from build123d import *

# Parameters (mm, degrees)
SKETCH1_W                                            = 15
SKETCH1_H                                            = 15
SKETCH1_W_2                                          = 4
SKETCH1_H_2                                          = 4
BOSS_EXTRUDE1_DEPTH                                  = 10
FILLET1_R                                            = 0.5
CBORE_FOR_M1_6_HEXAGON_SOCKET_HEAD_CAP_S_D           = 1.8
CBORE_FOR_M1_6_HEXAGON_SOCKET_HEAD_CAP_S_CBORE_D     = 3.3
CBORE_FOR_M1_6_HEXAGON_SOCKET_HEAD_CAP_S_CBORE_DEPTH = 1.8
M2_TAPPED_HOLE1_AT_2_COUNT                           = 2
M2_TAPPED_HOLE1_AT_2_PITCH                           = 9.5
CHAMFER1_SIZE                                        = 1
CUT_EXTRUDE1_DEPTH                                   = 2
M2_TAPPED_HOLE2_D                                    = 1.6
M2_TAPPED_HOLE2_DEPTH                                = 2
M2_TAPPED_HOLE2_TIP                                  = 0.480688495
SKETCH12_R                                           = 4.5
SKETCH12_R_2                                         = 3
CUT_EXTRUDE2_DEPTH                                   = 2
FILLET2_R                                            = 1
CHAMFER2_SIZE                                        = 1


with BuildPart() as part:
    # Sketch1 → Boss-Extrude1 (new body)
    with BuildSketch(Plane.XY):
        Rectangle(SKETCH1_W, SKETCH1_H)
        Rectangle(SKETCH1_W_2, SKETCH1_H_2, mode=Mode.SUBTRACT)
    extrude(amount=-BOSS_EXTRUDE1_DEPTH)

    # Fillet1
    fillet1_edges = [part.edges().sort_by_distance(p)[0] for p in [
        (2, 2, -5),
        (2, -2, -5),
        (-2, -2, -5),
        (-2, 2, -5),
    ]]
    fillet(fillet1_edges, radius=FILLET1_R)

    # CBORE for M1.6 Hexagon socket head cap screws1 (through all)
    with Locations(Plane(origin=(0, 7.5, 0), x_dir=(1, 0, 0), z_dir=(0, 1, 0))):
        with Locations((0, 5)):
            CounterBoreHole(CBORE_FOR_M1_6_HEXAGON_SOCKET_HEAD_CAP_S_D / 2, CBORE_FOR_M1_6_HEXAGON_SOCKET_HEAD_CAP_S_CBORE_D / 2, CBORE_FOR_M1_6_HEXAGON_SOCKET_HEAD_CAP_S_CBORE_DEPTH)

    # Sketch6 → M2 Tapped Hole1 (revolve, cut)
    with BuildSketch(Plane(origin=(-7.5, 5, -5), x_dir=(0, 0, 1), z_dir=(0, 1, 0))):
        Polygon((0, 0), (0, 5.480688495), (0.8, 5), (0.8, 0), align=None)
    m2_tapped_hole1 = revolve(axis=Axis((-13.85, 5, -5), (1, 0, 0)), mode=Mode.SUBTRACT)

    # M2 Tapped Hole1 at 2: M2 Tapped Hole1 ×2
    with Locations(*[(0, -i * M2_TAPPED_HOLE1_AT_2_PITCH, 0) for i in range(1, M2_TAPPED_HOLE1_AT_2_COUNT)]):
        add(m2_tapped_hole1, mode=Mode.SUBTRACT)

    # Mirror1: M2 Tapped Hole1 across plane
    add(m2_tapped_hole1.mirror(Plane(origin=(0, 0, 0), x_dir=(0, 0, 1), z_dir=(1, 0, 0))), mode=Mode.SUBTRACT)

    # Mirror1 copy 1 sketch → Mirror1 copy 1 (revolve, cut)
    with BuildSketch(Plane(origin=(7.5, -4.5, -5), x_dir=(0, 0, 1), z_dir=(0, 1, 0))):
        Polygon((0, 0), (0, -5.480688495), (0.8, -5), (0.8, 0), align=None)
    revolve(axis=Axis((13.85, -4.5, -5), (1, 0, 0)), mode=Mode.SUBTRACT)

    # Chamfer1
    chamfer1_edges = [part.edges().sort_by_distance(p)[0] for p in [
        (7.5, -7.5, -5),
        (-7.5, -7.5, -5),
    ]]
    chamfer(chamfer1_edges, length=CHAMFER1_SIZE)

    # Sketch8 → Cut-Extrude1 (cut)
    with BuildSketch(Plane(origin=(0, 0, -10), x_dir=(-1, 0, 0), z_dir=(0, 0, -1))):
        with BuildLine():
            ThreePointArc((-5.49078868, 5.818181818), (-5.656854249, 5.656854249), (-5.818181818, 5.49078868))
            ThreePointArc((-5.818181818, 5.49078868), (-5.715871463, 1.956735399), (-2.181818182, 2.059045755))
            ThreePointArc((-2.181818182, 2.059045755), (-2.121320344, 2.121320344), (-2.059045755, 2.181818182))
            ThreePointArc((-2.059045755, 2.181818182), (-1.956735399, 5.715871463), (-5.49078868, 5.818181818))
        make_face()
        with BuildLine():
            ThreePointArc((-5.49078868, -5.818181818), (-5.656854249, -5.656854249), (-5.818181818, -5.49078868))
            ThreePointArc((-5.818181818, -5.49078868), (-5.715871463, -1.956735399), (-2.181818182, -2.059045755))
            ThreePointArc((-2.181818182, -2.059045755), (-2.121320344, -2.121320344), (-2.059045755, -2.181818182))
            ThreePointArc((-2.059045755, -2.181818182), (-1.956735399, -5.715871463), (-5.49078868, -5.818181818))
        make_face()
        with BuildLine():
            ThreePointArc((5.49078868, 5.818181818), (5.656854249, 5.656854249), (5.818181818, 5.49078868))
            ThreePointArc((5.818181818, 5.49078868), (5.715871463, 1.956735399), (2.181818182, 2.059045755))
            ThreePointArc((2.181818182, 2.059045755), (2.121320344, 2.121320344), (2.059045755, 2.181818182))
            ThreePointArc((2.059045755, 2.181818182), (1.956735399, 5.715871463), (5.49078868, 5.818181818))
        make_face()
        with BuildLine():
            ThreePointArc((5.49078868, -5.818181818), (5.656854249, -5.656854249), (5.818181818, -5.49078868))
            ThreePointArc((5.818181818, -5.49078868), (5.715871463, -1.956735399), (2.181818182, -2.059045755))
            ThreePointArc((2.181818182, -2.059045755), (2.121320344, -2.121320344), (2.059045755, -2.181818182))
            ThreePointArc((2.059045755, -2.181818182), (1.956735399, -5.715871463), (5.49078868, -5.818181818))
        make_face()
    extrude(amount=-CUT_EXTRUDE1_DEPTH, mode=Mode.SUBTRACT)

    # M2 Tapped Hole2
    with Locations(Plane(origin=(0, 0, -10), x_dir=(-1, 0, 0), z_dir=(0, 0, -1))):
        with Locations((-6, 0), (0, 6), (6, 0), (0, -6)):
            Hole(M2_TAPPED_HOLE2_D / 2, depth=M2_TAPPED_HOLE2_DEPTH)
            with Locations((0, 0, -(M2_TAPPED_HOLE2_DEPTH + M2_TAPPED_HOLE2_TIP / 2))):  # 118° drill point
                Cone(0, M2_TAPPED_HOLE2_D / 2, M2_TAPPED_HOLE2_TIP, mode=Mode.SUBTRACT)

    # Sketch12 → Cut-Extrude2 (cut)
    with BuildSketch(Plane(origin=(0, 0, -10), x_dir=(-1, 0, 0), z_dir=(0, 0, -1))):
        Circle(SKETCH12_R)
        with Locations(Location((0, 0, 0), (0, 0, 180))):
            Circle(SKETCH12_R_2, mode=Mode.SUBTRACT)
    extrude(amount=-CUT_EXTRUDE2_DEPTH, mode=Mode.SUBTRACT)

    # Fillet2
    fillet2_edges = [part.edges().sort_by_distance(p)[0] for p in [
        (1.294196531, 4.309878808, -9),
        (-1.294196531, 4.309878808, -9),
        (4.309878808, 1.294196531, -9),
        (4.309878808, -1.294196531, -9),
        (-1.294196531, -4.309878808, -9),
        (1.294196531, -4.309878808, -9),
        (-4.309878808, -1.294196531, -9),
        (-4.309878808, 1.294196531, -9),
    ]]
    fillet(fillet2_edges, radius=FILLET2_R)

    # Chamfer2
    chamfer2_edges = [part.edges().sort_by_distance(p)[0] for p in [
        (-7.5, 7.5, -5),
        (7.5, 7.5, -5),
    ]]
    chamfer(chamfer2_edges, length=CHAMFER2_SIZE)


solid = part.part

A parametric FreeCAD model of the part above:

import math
import FreeCAD as App
import Part
import Sketcher

V = App.Vector
Q = App.Units.Quantity


def edges_at(feature, points):
    """Names of the edges that pass closest to the given points."""
    edges = feature.Shape.Edges
    near = lambda p: min(range(len(edges)), key=lambda i: edges[i].distToShape(Part.Vertex(*p))[0])
    return sorted({f"Edge{near(p) + 1}" for p in points})


def add_polygon(sketch, points):
    """Adds a closed chain of lines whose ends are joined by coincident constraints."""
    first, n = sketch.GeometryCount, len(points)
    for a, b in zip(points, points[1:] + points[:1]):
        sketch.addGeometry(Part.LineSegment(App.Vector(*a, 0), App.Vector(*b, 0)), False)
    for i in range(n):
        sketch.addConstraint(Sketcher.Constraint("Coincident", first + i, 2, first + (i + 1) % n, 1))

doc = App.newDocument("Part")
params = doc.addObject("Spreadsheet::Sheet", "Params")
for row, (alias, value) in enumerate([
    ("sketch1_width", "15 mm"),
    ("sketch1_width2", "4 mm"),
    ("pad1_length", "10 mm"),
    ("fillet_radius", "0.5 mm"),
    ("sketch2_diameter", "1.8 mm"),
    ("hole_diameter", "1.8 mm"),
    ("hole_cbore_diameter", "3.3 mm"),
    ("hole_cbore_depth", "1.8 mm"),
    ("sketch3_width", "5 mm"),
    ("sketch3_height", "0.8 mm"),
    ("groove_angle", "360 deg"),
    ("linearpattern_pitch", "9.5 mm"),
    ("sketch4_width", "5 mm"),
    ("sketch4_height", "0.8 mm"),
    ("groove2_angle", "360 deg"),
    ("chamfer_size", "1 mm"),
    ("sketch5_radius", "8.000001 mm"),
    ("sketch5_radius2", "2.999999 mm"),
    ("pocket1_length", "2 mm"),
    ("sketch6_diameter", "1.6 mm"),
    ("hole2_diameter", "1.6 mm"),
    ("hole2_depth", "2 mm"),
    ("sketch7_diameter", "9 mm"),
    ("sketch7_diameter2", "6 mm"),
    ("pocket2_length", "2 mm"),
    ("fillet2_radius", "1 mm"),
    ("chamfer2_size", "1 mm"),
], start=1):
    params.set(f"A{row}", alias)
    params.set(f"B{row}", "=" + value)
    params.setAlias(f"B{row}", alias)

body = doc.addObject("PartDesign::Body", "Body")

# Sketch on XY plane
sketch1 = body.newObject("Sketcher::SketchObject", "Sketch")
sketch1.AttachmentSupport = (doc.getObject("XY_Plane"), [""])
sketch1.MapMode = "FlatFace"
add_polygon(sketch1, [(-7.5, 7.5), (-7.5, -7.5), (7.5, -7.5), (7.5, 7.5)])  # lines 0-3
add_polygon(sketch1, [(2, -2), (-2, -2), (-2, 2), (2, 2)])  # lines 4-7
sketch1.addConstraint([
    Sketcher.Constraint("Vertical", 0),
    Sketcher.Constraint("Horizontal", 1),
    Sketcher.Constraint("Vertical", 2),
    Sketcher.Constraint("Horizontal", 3),
    Sketcher.Constraint("Horizontal", 4),
    Sketcher.Constraint("Vertical", 5),
    Sketcher.Constraint("Horizontal", 6),
    Sketcher.Constraint("Vertical", 7),
    Sketcher.Constraint("Symmetric", 0, 2, 2, 2, -1, 1),
    Sketcher.Constraint("Symmetric", 4, 2, 6, 2, -1, 1),
    Sketcher.Constraint("Equal", 3, 0),
    Sketcher.Constraint("Equal", 6, 5),
    Sketcher.Constraint("DistanceX", 1, 1, 1, 2, 15.0),
    Sketcher.Constraint("DistanceX", 4, 2, 4, 1, 4.0),
])
sketch1.setExpression("Constraints[20]", "Params.sketch1_width")
sketch1.setExpression("Constraints[21]", "Params.sketch1_width2")
pad1 = body.newObject("PartDesign::Pad", "Pad")
pad1.Profile = sketch1
pad1.setExpression("Length", "Params.pad1_length")
pad1.Reversed = True
doc.recompute()

fillet = body.newObject("PartDesign::Fillet", "Fillet")
fillet.Base = (pad1, edges_at(pad1, [
    (2, 2, -5),
    (2, -2, -5),
    (-2, -2, -5),
    (-2, 2, -5),
]))
fillet.setExpression("Radius", "Params.fillet_radius")

# Sketch on XZ plane
sketch2 = body.newObject("Sketcher::SketchObject", "Sketch001")
sketch2.AttachmentSupport = (doc.getObject("XZ_Plane"), [""])
sketch2.MapMode = "FlatFace"
sketch2.AttachmentOffset = App.Placement(V(0, 0, -7.5), App.Rotation())
sketch2.addGeometry(Part.Circle(V(0, -5, 0), V(0, 0, 1), 0.9), False)
sketch2.addConstraint([
    Sketcher.Constraint("PointOnObject", 0, 3, -2),
    Sketcher.Constraint("Diameter", 0, 1.8),
    Sketcher.Constraint("DistanceY", 0, 3, -1, 1, 5.0),
])
sketch2.setExpression("Constraints[1]", "Params.sketch2_diameter")
doc.recompute()
hole = body.newObject("PartDesign::Hole", "Hole")
hole.Profile = sketch2
hole.ThreadType = "None"
hole.setExpression("Diameter", "Params.hole_diameter")
hole.DepthType = "ThroughAll"
hole.HoleCutType = "Counterbore"
hole.setExpression("HoleCutDiameter", "Params.hole_cbore_diameter")
hole.setExpression("HoleCutDepth", "Params.hole_cbore_depth")
hole.Reversed = True

# Sketch on XZ plane
sketch3 = body.newObject("Sketcher::SketchObject", "Sketch002")
sketch3.AttachmentSupport = (doc.getObject("XZ_Plane"), [""])
sketch3.MapMode = "FlatFace"
sketch3.AttachmentOffset = App.Placement(V(0, 0, -5), App.Rotation())
add_polygon(sketch3, [(-2.019312, -5), (-7.5, -5), (-7.5, -4.2), (-2.5, -4.2)])  # lines 0-3
sketch3.addGeometry(Part.LineSegment(V(-7.5, -5, 0), V(-2.019312, -5, 0)), True)  # axis
sketch3.addConstraint([
    Sketcher.Constraint("Horizontal", 0),
    Sketcher.Constraint("Vertical", 1),
    Sketcher.Constraint("Horizontal", 2),
    Sketcher.Constraint("Horizontal", 4),
    Sketcher.Constraint("Coincident", 4, 1, 0, 2),
    Sketcher.Constraint("Equal", 0, 4),
    Sketcher.Constraint("DistanceX", 2, 1, 2, 2, 5.0),
    Sketcher.Constraint("Angle", 3, Q("-59 deg")),
    Sketcher.Constraint("DistanceY", 1, 1, 1, 2, 0.8),
    Sketcher.Constraint("DistanceY", 0, 2, -1, 1, 5.0),
    Sketcher.Constraint("DistanceX", 0, 2, -1, 1, 7.5),
])
sketch3.setExpression("Constraints[10]", "Params.sketch3_width")
sketch3.setExpression("Constraints[12]", "Params.sketch3_height")
groove = body.newObject("PartDesign::Groove", "Groove")
groove.Profile = sketch3
groove.ReferenceAxis = (sketch3, ["Axis0"])
groove.setExpression("Angle", "Params.groove_angle")
doc.recompute()

linearpattern = body.newObject("PartDesign::LinearPattern", "LinearPattern")
linearpattern.Originals = [groove]
linearpattern.Direction = (doc.getObject("Y_Axis"), [""])
linearpattern.Mode = "offset"
linearpattern.setExpression("Offset", "Params.linearpattern_pitch")
linearpattern.Occurrences = 2
linearpattern.Reversed = True
body.Tip = linearpattern
doc.recompute()

mirrored = body.newObject("PartDesign::Mirrored", "Mirrored")
mirrored.Originals = [groove]
mirrored.MirrorPlane = (doc.getObject("YZ_Plane"), [""])
body.Tip = mirrored

# Sketch on XZ plane
sketch4 = body.newObject("Sketcher::SketchObject", "Sketch003")
sketch4.AttachmentSupport = (doc.getObject("XZ_Plane"), [""])
sketch4.MapMode = "FlatFace"
sketch4.AttachmentOffset = App.Placement(V(0, 0, 4.5), App.Rotation())
add_polygon(sketch4, [(7.5, -5), (2.019312, -5), (2.5, -4.2), (7.5, -4.2)])  # lines 0-3
sketch4.addGeometry(Part.LineSegment(V(2.019312, -5, 0), V(7.5, -5, 0)), True)  # axis
sketch4.addConstraint([
    Sketcher.Constraint("Horizontal", 0),
    Sketcher.Constraint("Horizontal", 2),
    Sketcher.Constraint("Vertical", 3),
    Sketcher.Constraint("Horizontal", 4),
    Sketcher.Constraint("Coincident", 4, 1, 0, 2),
    Sketcher.Constraint("Vertical", 2, 2, 4, 2),
    Sketcher.Constraint("DistanceX", 2, 1, 2, 2, 5.0),
    Sketcher.Constraint("Angle", 1, Q("59 deg")),
    Sketcher.Constraint("DistanceY", 3, 2, 3, 1, 0.8),
    Sketcher.Constraint("DistanceY", 0, 2, -1, 1, 5.0),
    Sketcher.Constraint("DistanceX", -1, 1, 1, 2, 2.5),
])
sketch4.setExpression("Constraints[10]", "Params.sketch4_width")
sketch4.setExpression("Constraints[12]", "Params.sketch4_height")
groove2 = body.newObject("PartDesign::Groove", "Groove001")
groove2.Profile = sketch4
groove2.ReferenceAxis = (sketch4, ["Axis0"])
groove2.setExpression("Angle", "Params.groove2_angle")
doc.recompute()

chamfer = body.newObject("PartDesign::Chamfer", "Chamfer")
chamfer.Base = (groove2, edges_at(groove2, [(7.5, -7.5, -5), (-7.5, -7.5, -5)]))
chamfer.setExpression("Size", "Params.chamfer_size")

# Sketch on XY plane
sketch5 = body.newObject("Sketcher::SketchObject", "Sketch004")
sketch5.AttachmentSupport = (doc.getObject("XY_Plane"), [""])
sketch5.MapMode = "FlatFace"
sketch5.AttachmentOffset = App.Placement(V(0, 0, -10), App.Rotation())
sketch5.addGeometry([
    Part.ArcOfCircle(Part.Circle(V(-0.000001, -0.000001, 0), V(0, 0, 1), 8.000001), math.radians(43.341758), math.radians(46.658242)),  # 0
    Part.ArcOfCircle(Part.Circle(V(4, 3.774917, 0), V(0, 0, 1), 2.5), math.radians(-136.658242), math.radians(43.341758)),  # 1
    Part.ArcOfCircle(Part.Circle(V(0.000001, 0.000001, 0), V(0, 0, 1), 2.999999), math.radians(43.341758), math.radians(46.658242)),  # 2
    Part.ArcOfCircle(Part.Circle(V(3.774917, 4, 0), V(0, 0, 1), 2.5), math.radians(46.658242), math.radians(226.658242)),  # 3
    Part.ArcOfCircle(Part.Circle(V(-0.000001, 0.000001, 0), V(0, 0, 1), 8.000001), math.radians(-46.658242), math.radians(-43.341758)),  # 4
    Part.ArcOfCircle(Part.Circle(V(3.774917, -4, 0), V(0, 0, 1), 2.5), math.radians(133.341758), math.radians(313.341758)),  # 5
    Part.ArcOfCircle(Part.Circle(V(0.000001, -0.000001, 0), V(0, 0, 1), 2.999999), math.radians(-46.658242), math.radians(-43.341758)),  # 6
    Part.ArcOfCircle(Part.Circle(V(4, -3.774917, 0), V(0, 0, 1), 2.5), math.radians(-43.341758), math.radians(136.658242)),  # 7
    Part.ArcOfCircle(Part.Circle(V(0.000001, -0.000001, 0), V(0, 0, 1), 8.000001), math.radians(133.341758), math.radians(136.658242)),  # 8
    Part.ArcOfCircle(Part.Circle(V(-3.774917, 4, 0), V(0, 0, 1), 2.5), math.radians(-46.658242), math.radians(133.341758)),  # 9
    Part.ArcOfCircle(Part.Circle(V(-0.000001, 0.000001, 0), V(0, 0, 1), 2.999999), math.radians(133.341758), math.radians(136.658242)),  # 10
    Part.ArcOfCircle(Part.Circle(V(-4, 3.774917, 0), V(0, 0, 1), 2.5), math.radians(136.658242), math.radians(316.658242)),  # 11
    Part.ArcOfCircle(Part.Circle(V(0.000001, 0.000001, 0), V(0, 0, 1), 8.000001), math.radians(-136.658242), math.radians(-133.341758)),  # 12
    Part.ArcOfCircle(Part.Circle(V(-4, -3.774917, 0), V(0, 0, 1), 2.5), math.radians(43.341758), math.radians(223.341758)),  # 13
    Part.ArcOfCircle(Part.Circle(V(-0.000001, -0.000001, 0), V(0, 0, 1), 2.999999), math.radians(-136.658242), math.radians(-133.341758)),  # 14
    Part.ArcOfCircle(Part.Circle(V(-3.774917, -4, 0), V(0, 0, 1), 2.5), math.radians(-133.341758), math.radians(46.658242)),  # 15
], False)
sketch5.addConstraint([
    Sketcher.Constraint("Tangent", 0, 1, 1, 2),
    Sketcher.Constraint("Tangent", 1, 1, 2, 1),
    Sketcher.Constraint("Tangent", 2, 2, 3, 2),
    Sketcher.Constraint("Tangent", 3, 1, 0, 2),
    Sketcher.Constraint("Tangent", 4, 1, 5, 2),
    Sketcher.Constraint("Tangent", 5, 1, 6, 1),
    Sketcher.Constraint("Tangent", 6, 2, 7, 2),
    Sketcher.Constraint("Tangent", 7, 1, 4, 2),
    Sketcher.Constraint("Tangent", 8, 1, 9, 2),
    Sketcher.Constraint("Tangent", 9, 1, 10, 1),
    Sketcher.Constraint("Tangent", 10, 2, 11, 2),
    Sketcher.Constraint("Tangent", 11, 1, 8, 2),
    Sketcher.Constraint("Tangent", 12, 1, 13, 2),
    Sketcher.Constraint("Tangent", 13, 1, 14, 1),
    Sketcher.Constraint("Tangent", 14, 2, 15, 2),
    Sketcher.Constraint("Tangent", 15, 1, 12, 2),
    Sketcher.Constraint("Coincident", 0, 3, -1, 1),
    Sketcher.Constraint("Coincident", 2, 3, -1, 1),
    Sketcher.Constraint("Coincident", 4, 3, -1, 1),
    Sketcher.Constraint("Coincident", 6, 3, -1, 1),
    Sketcher.Constraint("Coincident", 8, 3, -1, 1),
    Sketcher.Constraint("Coincident", 10, 3, -1, 1),
    Sketcher.Constraint("Coincident", 12, 3, -1, 1),
    Sketcher.Constraint("Coincident", 14, 3, -1, 1),
    Sketcher.Constraint("Equal", 0, 4),
    Sketcher.Constraint("Equal", 3, 5),
    Sketcher.Constraint("Equal", 4, 8),
    Sketcher.Constraint("Equal", 7, 9),
    Sketcher.Constraint("Equal", 8, 12),
    Sketcher.Constraint("Equal", 11, 13),
    Sketcher.Constraint("Horizontal", 3, 3, 9, 3),
    Sketcher.Constraint("Horizontal", 1, 3, 11, 3),
    Sketcher.Constraint("Horizontal", 7, 3, 13, 3),
    Sketcher.Constraint("Horizontal", 5, 3, 15, 3),
    Sketcher.Constraint("Vertical", 3, 3, 5, 3),
    Sketcher.Constraint("Vertical", 1, 3, 7, 3),
    Sketcher.Constraint("Radius", 0, 8.000001),
    Sketcher.Constraint("Radius", 2, 2.999999),
    Sketcher.Constraint("DistanceX", -1, 1, 1, 3, 4.0),
    Sketcher.Constraint("DistanceY", -1, 1, 3, 3, 4.0),
])
sketch5.setExpression("Constraints[36]", "Params.sketch5_radius")
sketch5.setExpression("Constraints[37]", "Params.sketch5_radius2")
pocket1 = body.newObject("PartDesign::Pocket", "Pocket")
pocket1.Profile = sketch5
pocket1.setExpression("Length", "Params.pocket1_length")
pocket1.Reversed = True

# Sketch on XY plane
sketch6 = body.newObject("Sketcher::SketchObject", "Sketch005")
sketch6.AttachmentSupport = (doc.getObject("XY_Plane"), [""])
sketch6.MapMode = "FlatFace"
sketch6.AttachmentOffset = App.Placement(V(0, 0, -10), App.Rotation())
sketch6.addGeometry([
    Part.Circle(V(6, 0, 0), V(0, 0, 1), 0.8),
    Part.Circle(V(0, 6, 0), V(0, 0, 1), 0.8),
    Part.Circle(V(-6, 0, 0), V(0, 0, 1), 0.8),
    Part.Circle(V(0, -6, 0), V(0, 0, 1), 0.8),
], False)
sketch6.addConstraint([
    Sketcher.Constraint("Equal", 0, 1),
    Sketcher.Constraint("Equal", 1, 2),
    Sketcher.Constraint("Equal", 2, 3),
    Sketcher.Constraint("Symmetric", 0, 3, 2, 3, -1, 1),
    Sketcher.Constraint("Symmetric", 1, 3, 3, 3, -1, 1),
    Sketcher.Constraint("PointOnObject", 0, 3, -1),
    Sketcher.Constraint("PointOnObject", 1, 3, -2),
    Sketcher.Constraint("Diameter", 0, 1.6),
    Sketcher.Constraint("DistanceX", -1, 1, 0, 3, 6.0),
    Sketcher.Constraint("DistanceY", -1, 1, 1, 3, 6.0),
])
sketch6.setExpression("Constraints[7]", "Params.sketch6_diameter")
doc.recompute()
hole2 = body.newObject("PartDesign::Hole", "Hole001")
hole2.Profile = sketch6
hole2.ThreadType = "None"
hole2.setExpression("Diameter", "Params.hole2_diameter")
hole2.DepthType = "Dimension"
hole2.setExpression("Depth", "Params.hole2_depth")
hole2.DrillPoint = "Angled"
hole2.DrillPointAngle = 118
hole2.Reversed = True

# Sketch on XY plane
sketch7 = body.newObject("Sketcher::SketchObject", "Sketch006")
sketch7.AttachmentSupport = (doc.getObject("XY_Plane"), [""])
sketch7.MapMode = "FlatFace"
sketch7.AttachmentOffset = App.Placement(V(0, 0, -10), App.Rotation())
sketch7.addGeometry([
    Part.Circle(V(0, 0, 0), V(0, 0, 1), 4.5),
    Part.Circle(V(0, 0, 0), V(0, 0, 1), 3),
], False)
sketch7.addConstraint([
    Sketcher.Constraint("Coincident", 0, 3, -1, 1),
    Sketcher.Constraint("Coincident", 1, 3, -1, 1),
    Sketcher.Constraint("Diameter", 0, 9.0),
    Sketcher.Constraint("Diameter", 1, 6.0),
])
sketch7.setExpression("Constraints[2]", "Params.sketch7_diameter")
sketch7.setExpression("Constraints[3]", "Params.sketch7_diameter2")
pocket2 = body.newObject("PartDesign::Pocket", "Pocket001")
pocket2.Profile = sketch7
pocket2.setExpression("Length", "Params.pocket2_length")
pocket2.Reversed = True
doc.recompute()

fillet2 = body.newObject("PartDesign::Fillet", "Fillet001")
fillet2.Base = (pocket2, edges_at(pocket2, [
    (1.294, 4.31, -9),
    (-1.294, 4.31, -9),
    (4.31, 1.294, -9),
    (4.31, -1.294, -9),
    (-1.294, -4.31, -9),
    (1.294, -4.31, -9),
    (-4.31, -1.294, -9),
    (-4.31, 1.294, -9),
]))
fillet2.setExpression("Radius", "Params.fillet2_radius")
doc.recompute()

chamfer2 = body.newObject("PartDesign::Chamfer", "Chamfer001")
chamfer2.Base = (fillet2, edges_at(fillet2, [(-7.5, 7.5, -5), (7.5, 7.5, -5)]))
chamfer2.setExpression("Size", "Params.chamfer2_size")

doc.recompute()
